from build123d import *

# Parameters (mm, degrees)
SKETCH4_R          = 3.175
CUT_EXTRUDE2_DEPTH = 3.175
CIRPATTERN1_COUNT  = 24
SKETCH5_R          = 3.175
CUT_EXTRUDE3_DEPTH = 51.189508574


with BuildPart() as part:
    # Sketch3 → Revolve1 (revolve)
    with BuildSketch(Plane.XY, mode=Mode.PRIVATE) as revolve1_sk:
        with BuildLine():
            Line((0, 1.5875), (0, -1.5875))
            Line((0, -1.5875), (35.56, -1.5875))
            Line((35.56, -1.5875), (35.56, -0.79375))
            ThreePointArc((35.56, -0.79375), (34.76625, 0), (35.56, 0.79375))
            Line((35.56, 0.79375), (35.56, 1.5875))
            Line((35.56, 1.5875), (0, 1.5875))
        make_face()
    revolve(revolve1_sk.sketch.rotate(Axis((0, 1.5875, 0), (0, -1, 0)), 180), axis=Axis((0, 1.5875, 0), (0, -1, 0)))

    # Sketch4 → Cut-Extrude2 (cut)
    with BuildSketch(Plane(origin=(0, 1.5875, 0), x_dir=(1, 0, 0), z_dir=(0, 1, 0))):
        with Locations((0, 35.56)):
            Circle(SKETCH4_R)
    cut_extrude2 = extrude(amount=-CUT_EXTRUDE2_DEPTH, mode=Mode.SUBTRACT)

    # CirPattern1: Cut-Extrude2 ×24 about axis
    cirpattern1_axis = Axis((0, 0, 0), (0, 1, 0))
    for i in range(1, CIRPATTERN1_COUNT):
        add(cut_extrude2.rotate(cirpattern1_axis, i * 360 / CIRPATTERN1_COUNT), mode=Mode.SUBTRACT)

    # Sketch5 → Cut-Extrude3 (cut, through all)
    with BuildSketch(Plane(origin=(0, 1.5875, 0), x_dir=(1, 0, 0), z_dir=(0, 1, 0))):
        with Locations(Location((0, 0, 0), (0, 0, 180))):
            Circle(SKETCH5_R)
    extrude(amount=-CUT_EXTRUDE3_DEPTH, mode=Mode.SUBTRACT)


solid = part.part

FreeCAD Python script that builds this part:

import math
import FreeCAD as App
import Part
import Sketcher

V = App.Vector
Q = App.Units.Quantity

doc = App.newDocument("Part")
body = doc.addObject("PartDesign::Body", "Body")

sketch1 = body.newObject("Sketcher::SketchObject", "Sketch")
sketch1.AttachmentSupport = (doc.getObject("XY_Plane"), [""])
sketch1.MapMode = "FlatFace"
sketch1.addGeometry(Part.LineSegment(V(0, 1.6, 0), V(0, -1.6, 0)), False)
sketch1.addGeometry(Part.LineSegment(V(0, -1.6, 0), V(35.6, -1.6, 0)), False)
sketch1.addGeometry(Part.LineSegment(V(35.6, -1.6, 0), V(35.6, -0.8, 0)), False)
sketch1.addGeometry(Part.ArcOfCircle(Part.Circle(V(35.6, 0, 0), V(0, 0, 1), 0.8), math.radians(90), math.radians(270)), False)
sketch1.addGeometry(Part.LineSegment(V(35.6, 0.8, 0), V(35.6, 1.6, 0)), False)
sketch1.addGeometry(Part.LineSegment(V(35.6, 1.6, 0), V(0, 1.6, 0)), False)
sketch1.addConstraint(Sketcher.Constraint("Coincident", 0, 2, 1, 1))
sketch1.addConstraint(Sketcher.Constraint("Coincident", 1, 2, 2, 1))
sketch1.addConstraint(Sketcher.Constraint("Coincident", 2, 2, 3, 2))
sketch1.addConstraint(Sketcher.Constraint("Coincident", 3, 1, 4, 1))
sketch1.addConstraint(Sketcher.Constraint("Coincident", 4, 2, 5, 1))
sketch1.addConstraint(Sketcher.Constraint("Coincident", 5, 2, 0, 1))
sketch1.addConstraint(Sketcher.Constraint("Vertical", 0))
sketch1.addConstraint(Sketcher.Constraint("Horizontal", 1))
sketch1.addConstraint(Sketcher.Constraint("Vertical", 2))
sketch1.addConstraint(Sketcher.Constraint("Vertical", 4))
sketch1.addConstraint(Sketcher.Constraint("Horizontal", 5))
sketch1.addConstraint(Sketcher.Constraint("Symmetric", 0, 2, 5, 2, -1, 1))
sketch1.addConstraint(Sketcher.Constraint("Symmetric", 2, 2, 3, 1, -1))
sketch1.addConstraint(Sketcher.Constraint("Vertical", 3, 3, 1, 2))
sketch1.addConstraint(Sketcher.Constraint("DistanceX", 1, 1, 1, 2, Q("1.4 in")))
sketch1.addConstraint(Sketcher.Constraint("Radius", 3, Q("0.03125 in")))
sketch1.addConstraint(Sketcher.Constraint("DistanceY", 0, 2, 0, 1, Q("0.125 in")))
revolution = body.newObject("PartDesign::Revolution", "Revolution")
revolution.Profile = sketch1
revolution.ReferenceAxis = (sketch1, ["V_Axis"])
revolution.Angle = 360

sketch2 = body.newObject("Sketcher::SketchObject", "Sketch001")
sketch2.AttachmentSupport = (doc.getObject("XZ_Plane"), [""])
sketch2.MapMode = "FlatFace"
sketch2.AttachmentOffset = App.Placement(V(0, 0, -0.0625 * 25.4), App.Rotation())
sketch2.addGeometry(Part.Circle(V(0, -35.6, 0), V(0, 0, 1), 3.2), False)
sketch2.addConstraint(Sketcher.Constraint("PointOnObject", 0, 3, -2))
sketch2.addConstraint(Sketcher.Constraint("Diameter", 0, Q("0.25 in")))
sketch2.addConstraint(Sketcher.Constraint("DistanceY", 0, 3, -1, 1, Q("1.4 in")))
pocket1 = body.newObject("PartDesign::Pocket", "Pocket")
pocket1.Profile = sketch2
pocket1.Length = Q("0.125 in")
pocket1.Reversed = True
doc.recompute()

polarpattern = body.newObject("PartDesign::PolarPattern", "PolarPattern")
polarpattern.Originals = [pocket1]
polarpattern.Axis = (doc.getObject("Y_Axis"), [""])
polarpattern.Angle = 360
polarpattern.Occurrences = 24
body.Tip = polarpattern

sketch3 = body.newObject("Sketcher::SketchObject", "Sketch002")
sketch3.AttachmentSupport = (doc.getObject("XZ_Plane"), [""])
sketch3.MapMode = "FlatFace"
sketch3.AttachmentOffset = App.Placement(V(0, 0, -0.0625 * 25.4), App.Rotation())
sketch3.addGeometry(Part.Circle(V(0, 0, 0), V(0, 0, 1), 3.2), False)
sketch3.addConstraint(Sketcher.Constraint("Coincident", 0, 3, -1, 1))
sketch3.addConstraint(Sketcher.Constraint("Diameter", 0, Q("0.25 in")))
pocket2 = body.newObject("PartDesign::Pocket", "Pocket001")
pocket2.Profile = sketch3
pocket2.Type = "ThroughAll"
pocket2.Reversed = True

doc.recompute()
